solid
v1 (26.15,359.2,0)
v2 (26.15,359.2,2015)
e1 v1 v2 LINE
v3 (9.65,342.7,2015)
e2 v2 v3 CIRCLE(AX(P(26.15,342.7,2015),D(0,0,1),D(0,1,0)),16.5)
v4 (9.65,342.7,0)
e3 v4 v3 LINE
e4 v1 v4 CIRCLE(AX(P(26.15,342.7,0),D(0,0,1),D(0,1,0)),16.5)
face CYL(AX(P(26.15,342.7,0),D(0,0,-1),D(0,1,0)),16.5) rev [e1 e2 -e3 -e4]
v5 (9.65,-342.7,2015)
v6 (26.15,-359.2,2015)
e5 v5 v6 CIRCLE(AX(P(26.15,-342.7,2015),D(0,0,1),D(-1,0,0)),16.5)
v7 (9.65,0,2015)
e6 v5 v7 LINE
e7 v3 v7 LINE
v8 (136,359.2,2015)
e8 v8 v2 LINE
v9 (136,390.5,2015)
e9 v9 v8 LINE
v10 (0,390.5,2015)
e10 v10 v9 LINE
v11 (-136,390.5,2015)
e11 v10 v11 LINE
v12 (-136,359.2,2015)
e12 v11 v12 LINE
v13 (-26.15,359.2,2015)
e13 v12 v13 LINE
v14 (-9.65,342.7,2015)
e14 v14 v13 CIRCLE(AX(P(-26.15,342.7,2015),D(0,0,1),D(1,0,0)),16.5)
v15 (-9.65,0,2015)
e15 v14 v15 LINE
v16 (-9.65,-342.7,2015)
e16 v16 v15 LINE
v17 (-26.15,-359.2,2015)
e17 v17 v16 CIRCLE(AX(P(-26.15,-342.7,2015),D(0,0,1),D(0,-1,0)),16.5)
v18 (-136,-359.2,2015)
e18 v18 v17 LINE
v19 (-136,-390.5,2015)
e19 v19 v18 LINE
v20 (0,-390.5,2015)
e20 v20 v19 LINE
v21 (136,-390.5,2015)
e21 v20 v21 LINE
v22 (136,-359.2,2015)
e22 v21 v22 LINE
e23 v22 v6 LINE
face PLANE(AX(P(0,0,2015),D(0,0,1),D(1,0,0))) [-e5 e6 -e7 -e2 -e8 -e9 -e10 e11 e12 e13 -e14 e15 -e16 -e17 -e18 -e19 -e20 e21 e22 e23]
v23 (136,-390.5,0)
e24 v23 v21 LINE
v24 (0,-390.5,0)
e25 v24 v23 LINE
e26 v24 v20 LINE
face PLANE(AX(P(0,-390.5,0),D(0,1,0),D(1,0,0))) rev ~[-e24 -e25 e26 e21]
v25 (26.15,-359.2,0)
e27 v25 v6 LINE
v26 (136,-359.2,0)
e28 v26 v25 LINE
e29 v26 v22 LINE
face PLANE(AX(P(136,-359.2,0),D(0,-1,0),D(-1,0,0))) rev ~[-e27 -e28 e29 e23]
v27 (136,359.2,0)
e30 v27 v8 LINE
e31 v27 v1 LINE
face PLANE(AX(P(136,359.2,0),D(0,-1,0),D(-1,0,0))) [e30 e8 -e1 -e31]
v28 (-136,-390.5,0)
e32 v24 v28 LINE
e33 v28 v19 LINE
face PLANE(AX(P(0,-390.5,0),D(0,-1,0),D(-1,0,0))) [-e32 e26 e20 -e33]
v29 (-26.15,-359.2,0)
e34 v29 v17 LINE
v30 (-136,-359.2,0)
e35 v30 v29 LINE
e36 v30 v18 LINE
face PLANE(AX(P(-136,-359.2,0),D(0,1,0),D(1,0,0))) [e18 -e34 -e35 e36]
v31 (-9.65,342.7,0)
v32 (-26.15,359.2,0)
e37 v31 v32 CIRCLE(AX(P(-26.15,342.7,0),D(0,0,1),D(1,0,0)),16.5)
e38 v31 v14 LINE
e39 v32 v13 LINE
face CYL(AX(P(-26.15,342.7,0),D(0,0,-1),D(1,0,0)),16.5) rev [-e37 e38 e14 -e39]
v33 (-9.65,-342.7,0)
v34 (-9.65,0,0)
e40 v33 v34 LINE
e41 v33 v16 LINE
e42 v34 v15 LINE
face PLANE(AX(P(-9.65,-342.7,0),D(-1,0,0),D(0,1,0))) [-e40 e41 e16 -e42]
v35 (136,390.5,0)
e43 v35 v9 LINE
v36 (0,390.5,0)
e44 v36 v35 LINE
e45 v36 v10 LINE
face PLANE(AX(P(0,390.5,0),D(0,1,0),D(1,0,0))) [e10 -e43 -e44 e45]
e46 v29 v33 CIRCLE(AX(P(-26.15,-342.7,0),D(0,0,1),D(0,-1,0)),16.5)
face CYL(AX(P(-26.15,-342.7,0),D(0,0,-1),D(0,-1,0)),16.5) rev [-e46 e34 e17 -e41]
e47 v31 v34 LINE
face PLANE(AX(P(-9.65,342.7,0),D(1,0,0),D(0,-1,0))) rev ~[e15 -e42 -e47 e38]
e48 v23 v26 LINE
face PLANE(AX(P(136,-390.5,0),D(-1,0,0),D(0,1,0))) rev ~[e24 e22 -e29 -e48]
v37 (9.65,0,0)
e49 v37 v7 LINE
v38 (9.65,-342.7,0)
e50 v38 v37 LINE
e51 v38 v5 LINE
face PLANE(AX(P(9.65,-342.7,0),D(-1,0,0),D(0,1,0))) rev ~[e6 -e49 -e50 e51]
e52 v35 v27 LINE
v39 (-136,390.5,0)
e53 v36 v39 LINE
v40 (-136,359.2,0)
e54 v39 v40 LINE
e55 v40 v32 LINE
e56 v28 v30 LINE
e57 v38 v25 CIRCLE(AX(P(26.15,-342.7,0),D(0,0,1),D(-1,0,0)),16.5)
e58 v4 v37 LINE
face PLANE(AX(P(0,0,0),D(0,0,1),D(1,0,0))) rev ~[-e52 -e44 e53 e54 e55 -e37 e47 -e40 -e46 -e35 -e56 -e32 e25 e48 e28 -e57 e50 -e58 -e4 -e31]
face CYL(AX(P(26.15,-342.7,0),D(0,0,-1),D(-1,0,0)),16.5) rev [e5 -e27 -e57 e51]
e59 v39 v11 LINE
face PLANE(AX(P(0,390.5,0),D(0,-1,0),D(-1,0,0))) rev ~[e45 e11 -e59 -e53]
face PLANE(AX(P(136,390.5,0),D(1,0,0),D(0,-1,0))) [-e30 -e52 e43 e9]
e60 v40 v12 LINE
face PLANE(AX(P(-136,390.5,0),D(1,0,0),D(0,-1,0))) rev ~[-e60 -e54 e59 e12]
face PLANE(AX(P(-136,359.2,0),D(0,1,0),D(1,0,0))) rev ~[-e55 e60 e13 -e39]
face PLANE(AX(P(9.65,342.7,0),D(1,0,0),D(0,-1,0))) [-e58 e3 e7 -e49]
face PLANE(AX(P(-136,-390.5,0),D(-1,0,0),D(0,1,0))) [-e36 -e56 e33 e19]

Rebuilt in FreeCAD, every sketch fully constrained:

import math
import FreeCAD as App
import Part
import Sketcher
from FreeCAD import Vector

doc = App.newDocument("Part")
body = doc.addObject("PartDesign::Body", "Body")

sketch1 = doc.addObject("Sketcher::SketchObject", "Sketch")
body.addObject(sketch1)
sketch1.AttachmentSupport = (doc.XY_Plane, [""])
sketch1.MapMode = "FlatFace"
sketch1.addGeometry([
    Part.LineSegment(Vector(-136, -359, 0), Vector(-136, -390, 0)),
    Part.LineSegment(Vector(-136, -390, 0), Vector(136, -390, 0)),
    Part.LineSegment(Vector(136, -390, 0), Vector(136, -359, 0)),
    Part.LineSegment(Vector(136, -359, 0), Vector(26, -359, 0)),
    Part.ArcOfCircle(Part.Circle(Vector(26, -343, 0), Vector(0, 0, 1), 16), math.radians(180), math.radians(270)),
    Part.LineSegment(Vector(10, -343, 0), Vector(10, 343, 0)),
    Part.ArcOfCircle(Part.Circle(Vector(26, 343, 0), Vector(0, 0, 1), 16), math.radians(90), math.radians(180)),
    Part.LineSegment(Vector(26, 359, 0), Vector(136, 359, 0)),
    Part.LineSegment(Vector(136, 359, 0), Vector(136, 390, 0)),
    Part.LineSegment(Vector(136, 390, 0), Vector(-136, 390, 0)),
    Part.LineSegment(Vector(-136, 390, 0), Vector(-136, 359, 0)),
    Part.LineSegment(Vector(-136, 359, 0), Vector(-26, 359, 0)),
    Part.ArcOfCircle(Part.Circle(Vector(-26, 343, 0), Vector(0, 0, 1), 16), math.radians(0), math.radians(90)),
    Part.LineSegment(Vector(-10, 343, 0), Vector(-10, -343, 0)),
    Part.ArcOfCircle(Part.Circle(Vector(-26, -343, 0), Vector(0, 0, 1), 16), math.radians(-90), math.radians(0)),
    Part.LineSegment(Vector(-26, -359, 0), Vector(-136, -359, 0)),
], False)
sketch1.addConstraint([
    Sketcher.Constraint("Coincident", 0, 2, 1, 1),
    Sketcher.Constraint("Coincident", 1, 2, 2, 1),
    Sketcher.Constraint("Coincident", 2, 2, 3, 1),
    Sketcher.Constraint("Tangent", 3, 2, 4, 2),
    Sketcher.Constraint("Tangent", 4, 1, 5, 1),
    Sketcher.Constraint("Tangent", 5, 2, 6, 2),
    Sketcher.Constraint("Tangent", 6, 1, 7, 1),
    Sketcher.Constraint("Coincident", 7, 2, 8, 1),
    Sketcher.Constraint("Coincident", 8, 2, 9, 1),
    Sketcher.Constraint("Coincident", 9, 2, 10, 1),
    Sketcher.Constraint("Coincident", 10, 2, 11, 1),
    Sketcher.Constraint("Tangent", 11, 2, 12, 2),
    Sketcher.Constraint("Tangent", 12, 1, 13, 1),
    Sketcher.Constraint("Tangent", 13, 2, 14, 2),
    Sketcher.Constraint("Tangent", 14, 1, 15, 1),
    Sketcher.Constraint("Coincident", 15, 2, 0, 1),
    Sketcher.Constraint("Vertical", 0),
    Sketcher.Constraint("Horizontal", 1),
    Sketcher.Constraint("Vertical", 2),
    Sketcher.Constraint("Horizontal", 3),
    Sketcher.Constraint("Vertical", 5),
    Sketcher.Constraint("Horizontal", 7),
    Sketcher.Constraint("Vertical", 8),
    Sketcher.Constraint("Horizontal", 9),
    Sketcher.Constraint("Vertical", 10),
    Sketcher.Constraint("Horizontal", 11),
    Sketcher.Constraint("Vertical", 13),
    Sketcher.Constraint("Horizontal", 15),
    Sketcher.Constraint("Equal", 4, 6),
    Sketcher.Constraint("Equal", 6, 12),
    Sketcher.Constraint("Equal", 12, 14),
    Sketcher.Constraint("Symmetric", 4, 3, 12, 3, -1, 1),
    Sketcher.Constraint("Symmetric", 0, 2, 8, 2, -1, 1),
    Sketcher.Constraint("Symmetric", 7, 2, 10, 2, -2),
    Sketcher.Constraint("Symmetric", 2, 2, 15, 2, -2),
    Sketcher.Constraint("Radius", 4, 16.5),
    Sketcher.Constraint("DistanceY", 0, 2, 0, 1, 31.3),
    Sketcher.Constraint("DistanceX", 0, 2, -1, 1, 136.0),
    Sketcher.Constraint("DistanceY", 0, 2, -1, 1, 390.5),
    Sketcher.Constraint("DistanceX", -1, 1, 4, 1, 9.65),
])
pad1 = doc.addObject("PartDesign::Pad", "Pad")
body.addObject(pad1)
pad1.Profile = sketch1
pad1.Length = 2015

doc.recompute()
